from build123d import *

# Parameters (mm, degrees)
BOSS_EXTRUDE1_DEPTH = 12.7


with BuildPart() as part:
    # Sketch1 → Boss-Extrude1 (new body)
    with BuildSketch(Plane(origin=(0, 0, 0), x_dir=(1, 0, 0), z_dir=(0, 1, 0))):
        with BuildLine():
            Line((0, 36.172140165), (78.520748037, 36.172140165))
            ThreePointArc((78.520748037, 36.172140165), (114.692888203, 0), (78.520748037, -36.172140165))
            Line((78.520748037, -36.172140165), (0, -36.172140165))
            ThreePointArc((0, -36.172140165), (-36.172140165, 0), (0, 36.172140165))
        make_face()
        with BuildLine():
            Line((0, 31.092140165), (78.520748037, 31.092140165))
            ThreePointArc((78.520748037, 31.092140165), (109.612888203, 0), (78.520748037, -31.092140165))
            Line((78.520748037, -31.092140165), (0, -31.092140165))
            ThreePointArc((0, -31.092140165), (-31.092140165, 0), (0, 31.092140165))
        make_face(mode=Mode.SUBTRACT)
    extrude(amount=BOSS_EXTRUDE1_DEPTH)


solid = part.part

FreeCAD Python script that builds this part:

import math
import FreeCAD as App
import Part
import Sketcher
Q = App.Units.Quantity

doc = App.newDocument("Part")
body = doc.addObject("PartDesign::Body", "Body")

# Sketch on XZ plane
sketch1 = body.newObject("Sketcher::SketchObject", "Sketch")
sketch1.AttachmentSupport = (doc.getObject("XZ_Plane"), [""])
sketch1.MapMode = "FlatFace"
sketch1.addGeometry(Part.LineSegment(App.Vector(79, -36, 0), App.Vector(0, -36, 0)), False)
sketch1.addGeometry(Part.ArcOfCircle(Part.Circle(App.Vector(0, 0, 0), App.Vector(0, 0, 1), 36), math.radians(90), math.radians(270)), False)
sketch1.addGeometry(Part.LineSegment(App.Vector(0, 36, 0), App.Vector(79, 36, 0)), False)
sketch1.addGeometry(Part.ArcOfCircle(Part.Circle(App.Vector(79, 0, 0), App.Vector(0, 0, 1), 36), math.radians(-90), math.radians(90)), False)
sketch1.addGeometry(Part.LineSegment(App.Vector(0, -31, 0), App.Vector(79, -31, 0)), False)
sketch1.addGeometry(Part.ArcOfCircle(Part.Circle(App.Vector(79, 0, 0), App.Vector(0, 0, 1), 31), math.radians(-90), math.radians(90)), False)
sketch1.addGeometry(Part.LineSegment(App.Vector(79, 31, 0), App.Vector(0, 31, 0)), False)
sketch1.addGeometry(Part.ArcOfCircle(Part.Circle(App.Vector(0, 0, 0), App.Vector(0, 0, 1), 31), math.radians(90), math.radians(270)), False)
sketch1.addConstraint(Sketcher.Constraint("Tangent", 0, 2, 1, 2))
sketch1.addConstraint(Sketcher.Constraint("Tangent", 1, 1, 2, 1))
sketch1.addConstraint(Sketcher.Constraint("Tangent", 2, 2, 3, 2))
sketch1.addConstraint(Sketcher.Constraint("Tangent", 3, 1, 0, 1))
sketch1.addConstraint(Sketcher.Constraint("Tangent", 4, 2, 5, 1))
sketch1.addConstraint(Sketcher.Constraint("Tangent", 5, 2, 6, 1))
sketch1.addConstraint(Sketcher.Constraint("Tangent", 6, 2, 7, 1))
sketch1.addConstraint(Sketcher.Constraint("Tangent", 7, 2, 4, 1))
sketch1.addConstraint(Sketcher.Constraint("Horizontal", 0))
sketch1.addConstraint(Sketcher.Constraint("Horizontal", 2))
sketch1.addConstraint(Sketcher.Constraint("Horizontal", 4))
sketch1.addConstraint(Sketcher.Constraint("Horizontal", 6))
sketch1.addConstraint(Sketcher.Constraint("Coincident", 1, 3, -1, 1))
sketch1.addConstraint(Sketcher.Constraint("Coincident", 7, 3, -1, 1))
sketch1.addConstraint(Sketcher.Constraint("Vertical", 5, 3, 2, 2))
sketch1.addConstraint(Sketcher.Constraint("Radius", 1, Q("1.4241 in")))
sketch1.addConstraint(Sketcher.Constraint("Radius", 5, Q("1.2241 in")))
sketch1.addConstraint(Sketcher.Constraint("DistanceX", 0, 2, 0, 1, Q("78.520748 mm")))
pad1 = body.newObject("PartDesign::Pad", "Pad")
pad1.Profile = sketch1
pad1.Length = Q("0.5 in")
pad1.Reversed = True

doc.recompute()
